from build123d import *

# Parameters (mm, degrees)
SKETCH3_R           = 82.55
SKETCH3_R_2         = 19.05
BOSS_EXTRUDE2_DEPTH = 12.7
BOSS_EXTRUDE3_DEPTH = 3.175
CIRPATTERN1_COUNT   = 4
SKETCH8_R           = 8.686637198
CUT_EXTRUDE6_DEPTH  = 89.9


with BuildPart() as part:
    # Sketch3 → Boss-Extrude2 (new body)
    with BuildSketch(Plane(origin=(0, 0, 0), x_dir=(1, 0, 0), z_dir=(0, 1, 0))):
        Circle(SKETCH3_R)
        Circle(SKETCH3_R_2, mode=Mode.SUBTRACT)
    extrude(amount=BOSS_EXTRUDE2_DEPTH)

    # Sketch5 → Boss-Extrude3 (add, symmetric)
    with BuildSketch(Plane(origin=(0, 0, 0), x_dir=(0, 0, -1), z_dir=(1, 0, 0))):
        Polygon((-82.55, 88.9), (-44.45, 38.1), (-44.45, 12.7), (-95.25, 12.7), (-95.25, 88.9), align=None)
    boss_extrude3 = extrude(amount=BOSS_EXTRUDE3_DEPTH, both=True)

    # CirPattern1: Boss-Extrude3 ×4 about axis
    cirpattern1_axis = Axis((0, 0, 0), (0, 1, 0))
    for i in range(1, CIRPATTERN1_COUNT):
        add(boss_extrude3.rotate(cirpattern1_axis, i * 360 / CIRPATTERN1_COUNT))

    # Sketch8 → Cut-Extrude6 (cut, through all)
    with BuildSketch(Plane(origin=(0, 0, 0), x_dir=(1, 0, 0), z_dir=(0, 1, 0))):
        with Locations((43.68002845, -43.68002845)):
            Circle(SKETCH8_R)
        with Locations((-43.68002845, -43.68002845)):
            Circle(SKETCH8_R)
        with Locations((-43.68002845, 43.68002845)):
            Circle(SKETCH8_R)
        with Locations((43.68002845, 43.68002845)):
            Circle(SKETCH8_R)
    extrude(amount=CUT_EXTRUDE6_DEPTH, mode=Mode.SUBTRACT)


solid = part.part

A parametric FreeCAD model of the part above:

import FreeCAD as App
import Part
import Sketcher
from FreeCAD import Vector
Q = App.Units.Quantity

doc = App.newDocument("Part")
body = doc.addObject("PartDesign::Body", "Body")

sketch1 = body.newObject("Sketcher::SketchObject", "Sketch")
sketch1.AttachmentSupport = (doc.getObject("XZ_Plane"), [""])
sketch1.MapMode = "FlatFace"
sketch1.addGeometry(Part.Circle(Vector(0, 0, 0), Vector(0, 0, 1), 83), False)
sketch1.addGeometry(Part.Circle(Vector(0, 0, 0), Vector(0, 0, 1), 19), False)
sketch1.addConstraint(Sketcher.Constraint("Coincident", 0, 3, -1, 1))
sketch1.addConstraint(Sketcher.Constraint("Coincident", 1, 3, -1, 1))
sketch1.addConstraint(Sketcher.Constraint("Diameter", 0, Q("6.5 in")))
sketch1.addConstraint(Sketcher.Constraint("Diameter", 1, Q("1.5 in")))
pad1 = body.newObject("PartDesign::Pad", "Pad")
pad1.Profile = sketch1
pad1.Length = Q("0.5 in")
pad1.Reversed = True

sketch2 = body.newObject("Sketcher::SketchObject", "Sketch001")
sketch2.AttachmentSupport = (doc.getObject("YZ_Plane"), [""])
sketch2.MapMode = "FlatFace"
sketch2.addGeometry(Part.LineSegment(Vector(38, 44, 0), Vector(89, 83, 0)), False)
sketch2.addGeometry(Part.LineSegment(Vector(89, 83, 0), Vector(89, 95, 0)), False)
sketch2.addGeometry(Part.LineSegment(Vector(89, 95, 0), Vector(13, 95, 0)), False)
sketch2.addGeometry(Part.LineSegment(Vector(13, 95, 0), Vector(13, 44, 0)), False)
sketch2.addGeometry(Part.LineSegment(Vector(13, 44, 0), Vector(38, 44, 0)), False)
sketch2.addConstraint(Sketcher.Constraint("Coincident", 0, 2, 1, 1))
sketch2.addConstraint(Sketcher.Constraint("Coincident", 1, 2, 2, 1))
sketch2.addConstraint(Sketcher.Constraint("Coincident", 2, 2, 3, 1))
sketch2.addConstraint(Sketcher.Constraint("Coincident", 3, 2, 4, 1))
sketch2.addConstraint(Sketcher.Constraint("Coincident", 4, 2, 0, 1))
sketch2.addConstraint(Sketcher.Constraint("Vertical", 1))
sketch2.addConstraint(Sketcher.Constraint("Horizontal", 2))
sketch2.addConstraint(Sketcher.Constraint("Vertical", 3))
sketch2.addConstraint(Sketcher.Constraint("Horizontal", 4))
sketch2.addConstraint(Sketcher.Constraint("DistanceX", 2, 2, 2, 1, Q("3 in")))
sketch2.addConstraint(Sketcher.Constraint("DistanceX", 4, 1, 4, 2, Q("1 in")))
sketch2.addConstraint(Sketcher.Constraint("DistanceY", 3, 2, 3, 1, Q("2 in")))
sketch2.addConstraint(Sketcher.Constraint("DistanceY", 1, 1, 1, 2, Q("0.5 in")))
sketch2.addConstraint(Sketcher.Constraint("DistanceX", -1, 1, 0, 2, Q("3.5 in")))
sketch2.addConstraint(Sketcher.Constraint("DistanceY", -1, 1, 0, 2, Q("3.25 in")))
pad2 = body.newObject("PartDesign::Pad", "Pad001")
pad2.Profile = sketch2
pad2.Length = Q("0.25 in")
pad2.Midplane = True
doc.recompute()

polarpattern = body.newObject("PartDesign::PolarPattern", "PolarPattern")
polarpattern.Originals = [pad2]
polarpattern.Axis = (doc.getObject("Y_Axis"), [""])
polarpattern.Angle = 360
polarpattern.Occurrences = 4
body.Tip = polarpattern

sketch3 = body.newObject("Sketcher::SketchObject", "Sketch002")
sketch3.AttachmentSupport = (doc.getObject("XZ_Plane"), [""])
sketch3.MapMode = "FlatFace"
sketch3.addGeometry(Part.Circle(Vector(44, 44, 0), Vector(0, 0, 1), 9), False)
sketch3.addGeometry(Part.Circle(Vector(-44, 44, 0), Vector(0, 0, 1), 9), False)
sketch3.addGeometry(Part.Circle(Vector(-44, -44, 0), Vector(0, 0, 1), 9), False)
sketch3.addGeometry(Part.Circle(Vector(44, -44, 0), Vector(0, 0, 1), 9), False)
sketch3.addConstraint(Sketcher.Constraint("Equal", 0, 1))
sketch3.addConstraint(Sketcher.Constraint("Equal", 1, 2))
sketch3.addConstraint(Sketcher.Constraint("Equal", 2, 3))
sketch3.addConstraint(Sketcher.Constraint("Symmetric", 0, 3, 2, 3, -1, 1))
sketch3.addConstraint(Sketcher.Constraint("Symmetric", 1, 3, 3, 3, -1, 1))
sketch3.addConstraint(Sketcher.Constraint("Symmetric", 0, 3, 1, 3, -2))
sketch3.addConstraint(Sketcher.Constraint("Diameter", 0, Q("17.373274 mm")))
sketch3.addConstraint(Sketcher.Constraint("DistanceX", -1, 1, 0, 3, Q("43.680028 mm")))
sketch3.addConstraint(Sketcher.Constraint("DistanceY", -1, 1, 0, 3, Q("43.680028 mm")))
pocket1 = body.newObject("PartDesign::Pocket", "Pocket")
pocket1.Profile = sketch3
pocket1.Type = "ThroughAll"

doc.recompute()
